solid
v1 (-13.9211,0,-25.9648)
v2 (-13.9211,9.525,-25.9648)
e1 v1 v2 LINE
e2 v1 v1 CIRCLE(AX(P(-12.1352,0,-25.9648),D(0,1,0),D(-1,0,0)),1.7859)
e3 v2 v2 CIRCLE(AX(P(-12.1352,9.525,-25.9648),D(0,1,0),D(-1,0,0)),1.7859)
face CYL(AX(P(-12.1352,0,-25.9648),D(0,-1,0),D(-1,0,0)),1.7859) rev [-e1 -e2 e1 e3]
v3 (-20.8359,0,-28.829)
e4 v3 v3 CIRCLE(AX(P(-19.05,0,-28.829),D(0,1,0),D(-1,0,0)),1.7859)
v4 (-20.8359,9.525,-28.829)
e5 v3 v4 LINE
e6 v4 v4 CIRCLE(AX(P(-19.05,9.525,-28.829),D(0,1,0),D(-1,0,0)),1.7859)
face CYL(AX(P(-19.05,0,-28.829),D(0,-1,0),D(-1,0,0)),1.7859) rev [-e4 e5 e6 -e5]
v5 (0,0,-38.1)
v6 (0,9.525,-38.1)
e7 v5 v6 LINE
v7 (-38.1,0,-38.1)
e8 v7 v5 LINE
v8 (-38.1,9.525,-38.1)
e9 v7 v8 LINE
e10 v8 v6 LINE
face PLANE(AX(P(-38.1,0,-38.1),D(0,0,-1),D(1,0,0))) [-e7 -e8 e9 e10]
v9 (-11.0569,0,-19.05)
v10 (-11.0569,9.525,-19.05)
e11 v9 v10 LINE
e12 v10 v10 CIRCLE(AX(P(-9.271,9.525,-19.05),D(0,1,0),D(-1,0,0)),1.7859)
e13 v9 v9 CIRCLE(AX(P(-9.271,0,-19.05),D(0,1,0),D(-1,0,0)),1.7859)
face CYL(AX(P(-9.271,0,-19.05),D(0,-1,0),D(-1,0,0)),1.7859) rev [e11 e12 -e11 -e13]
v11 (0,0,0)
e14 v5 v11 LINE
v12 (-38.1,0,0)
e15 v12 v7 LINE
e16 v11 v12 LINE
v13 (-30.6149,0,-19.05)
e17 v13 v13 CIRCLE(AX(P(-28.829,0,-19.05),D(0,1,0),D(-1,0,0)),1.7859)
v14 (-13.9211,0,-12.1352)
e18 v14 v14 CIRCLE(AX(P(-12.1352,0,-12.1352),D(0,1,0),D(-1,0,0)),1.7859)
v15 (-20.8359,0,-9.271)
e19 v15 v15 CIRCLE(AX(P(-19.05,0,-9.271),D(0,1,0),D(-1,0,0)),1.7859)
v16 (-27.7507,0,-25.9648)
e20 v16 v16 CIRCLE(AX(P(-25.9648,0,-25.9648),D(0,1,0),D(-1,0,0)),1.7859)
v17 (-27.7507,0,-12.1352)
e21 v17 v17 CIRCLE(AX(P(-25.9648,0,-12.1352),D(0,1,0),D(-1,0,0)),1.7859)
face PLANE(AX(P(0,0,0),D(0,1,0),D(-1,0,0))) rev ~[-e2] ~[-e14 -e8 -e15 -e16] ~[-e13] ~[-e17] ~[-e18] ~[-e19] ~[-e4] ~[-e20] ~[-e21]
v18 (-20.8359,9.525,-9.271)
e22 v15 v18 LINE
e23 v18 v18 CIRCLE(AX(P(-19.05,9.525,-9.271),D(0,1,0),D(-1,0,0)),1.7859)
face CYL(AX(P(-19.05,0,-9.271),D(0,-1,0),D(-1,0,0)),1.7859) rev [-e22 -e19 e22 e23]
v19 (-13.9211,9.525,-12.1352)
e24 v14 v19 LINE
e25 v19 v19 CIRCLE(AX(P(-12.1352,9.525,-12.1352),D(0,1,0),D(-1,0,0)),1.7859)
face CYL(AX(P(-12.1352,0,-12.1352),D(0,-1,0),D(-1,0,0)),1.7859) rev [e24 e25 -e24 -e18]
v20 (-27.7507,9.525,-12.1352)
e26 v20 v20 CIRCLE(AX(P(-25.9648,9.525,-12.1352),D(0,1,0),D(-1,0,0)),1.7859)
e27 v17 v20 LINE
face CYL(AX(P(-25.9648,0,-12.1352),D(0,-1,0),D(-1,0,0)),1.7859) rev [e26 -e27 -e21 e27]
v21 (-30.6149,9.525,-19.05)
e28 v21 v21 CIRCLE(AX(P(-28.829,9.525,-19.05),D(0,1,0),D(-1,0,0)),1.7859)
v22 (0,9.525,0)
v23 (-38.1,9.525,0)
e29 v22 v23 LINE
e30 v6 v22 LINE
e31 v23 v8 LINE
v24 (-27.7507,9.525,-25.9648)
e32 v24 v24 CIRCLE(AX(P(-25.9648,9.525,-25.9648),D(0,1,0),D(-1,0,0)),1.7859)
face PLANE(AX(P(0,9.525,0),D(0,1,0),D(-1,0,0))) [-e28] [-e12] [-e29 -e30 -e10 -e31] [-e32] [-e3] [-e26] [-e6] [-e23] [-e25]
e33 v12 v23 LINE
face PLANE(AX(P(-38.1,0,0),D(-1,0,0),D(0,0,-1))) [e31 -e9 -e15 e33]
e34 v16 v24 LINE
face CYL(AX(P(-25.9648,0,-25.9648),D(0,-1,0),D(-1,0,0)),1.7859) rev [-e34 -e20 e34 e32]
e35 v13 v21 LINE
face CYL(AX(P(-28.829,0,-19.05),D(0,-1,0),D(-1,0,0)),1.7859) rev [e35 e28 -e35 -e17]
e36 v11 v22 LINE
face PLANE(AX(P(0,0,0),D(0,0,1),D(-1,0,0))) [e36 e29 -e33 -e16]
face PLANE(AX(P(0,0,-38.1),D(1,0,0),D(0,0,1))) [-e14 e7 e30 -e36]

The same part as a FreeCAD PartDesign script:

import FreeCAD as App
import Part
import Sketcher
from FreeCAD import Vector
Q = App.Units.Quantity

doc = App.newDocument("Part")
params = doc.addObject("Spreadsheet::Sheet", "Params")
for row, (alias, value) in enumerate([
    ("sketch1_diameter", "0.140622 in"),
    ("sketch1_width", "1.5 in"),
    ("pad1_length", "0.375 in"),
], start=1):
    params.set(f"A{row}", alias)
    params.set(f"B{row}", "=" + value)
    params.setAlias(f"B{row}", alias)

body = doc.addObject("PartDesign::Body", "Body")

# Sketch on XZ plane
sketch1 = body.newObject("Sketcher::SketchObject", "Sketch")
sketch1.AttachmentSupport = (doc.getObject("XZ_Plane"), [""])
sketch1.MapMode = "FlatFace"
sketch1.addGeometry([
    Part.LineSegment(Vector(-38.1, 0, 0), Vector(0, 0, 0)),  # 0
    Part.LineSegment(Vector(0, 0, 0), Vector(0, -38.1, 0)),  # 1
    Part.LineSegment(Vector(0, -38.1, 0), Vector(-38.1, -38.1, 0)),  # 2
    Part.LineSegment(Vector(-38.1, -38.1, 0), Vector(-38.1, 0, 0)),  # 3
    Part.Circle(Vector(-12.1, -26, 0), Vector(0, 0, 1), 1.8),  # 4
    Part.Circle(Vector(-19.1, -28.8, 0), Vector(0, 0, 1), 1.8),  # 5
    Part.Circle(Vector(-26, -26, 0), Vector(0, 0, 1), 1.8),  # 6
    Part.Circle(Vector(-9.3, -19.1, 0), Vector(0, 0, 1), 1.8),  # 7
    Part.Circle(Vector(-12.1, -12.1, 0), Vector(0, 0, 1), 1.8),  # 8
    Part.Circle(Vector(-26, -12.1, 0), Vector(0, 0, 1), 1.8),  # 9
    Part.Circle(Vector(-28.8, -19.1, 0), Vector(0, 0, 1), 1.8),  # 10
    Part.Circle(Vector(-19.1, -9.3, 0), Vector(0, 0, 1), 1.8),  # 11
], False)
sketch1.addConstraint([
    Sketcher.Constraint("Coincident", 0, 2, 1, 1),
    Sketcher.Constraint("Coincident", 1, 2, 2, 1),
    Sketcher.Constraint("Coincident", 2, 2, 3, 1),
    Sketcher.Constraint("Coincident", 3, 2, 0, 1),
    Sketcher.Constraint("Horizontal", 0),
    Sketcher.Constraint("Vertical", 1),
    Sketcher.Constraint("Horizontal", 2),
    Sketcher.Constraint("Vertical", 3),
    Sketcher.Constraint("Coincident", 0, 2, -1, 1),
    Sketcher.Constraint("Equal", 4, 5),
    Sketcher.Constraint("Equal", 5, 6),
    Sketcher.Constraint("Equal", 6, 7),
    Sketcher.Constraint("Equal", 7, 8),
    Sketcher.Constraint("Equal", 8, 9),
    Sketcher.Constraint("Equal", 9, 10),
    Sketcher.Constraint("Equal", 10, 11),
    Sketcher.Constraint("Horizontal", 4, 3, 6, 3),
    Sketcher.Constraint("Horizontal", 8, 3, 9, 3),
    Sketcher.Constraint("Horizontal", 7, 3, 10, 3),
    Sketcher.Constraint("Vertical", 4, 3, 8, 3),
    Sketcher.Constraint("Vertical", 6, 3, 9, 3),
    Sketcher.Constraint("Vertical", 5, 3, 11, 3),
    Sketcher.Constraint("Equal", 2, 1),
    Sketcher.Constraint("Diameter", 4, Q("0.140622 in")),
    Sketcher.Constraint("DistanceX", 0, 1, 0, 2, Q("1.5 in")),
    Sketcher.Constraint("DistanceX", 5, 3, -1, 1, Q("0.75 in")),
    Sketcher.Constraint("DistanceY", 7, 3, -1, 1, Q("0.75 in")),
    Sketcher.Constraint("DistanceY", 5, 3, -1, 1, Q("1.135 in")),
    Sketcher.Constraint("DistanceX", 7, 3, -1, 1, Q("0.365 in")),
    Sketcher.Constraint("DistanceX", 10, 3, -1, 1, Q("1.135 in")),
    Sketcher.Constraint("DistanceY", 11, 3, -1, 1, Q("0.365 in")),
    Sketcher.Constraint("DistanceX", 4, 3, -1, 1, Q("12.1352 mm")),
    Sketcher.Constraint("DistanceY", 4, 3, -1, 1, Q("25.9648 mm")),
    Sketcher.Constraint("DistanceX", 6, 3, -1, 1, Q("25.9648 mm")),
    Sketcher.Constraint("DistanceY", 8, 3, -1, 1, Q("12.1352 mm")),
])
sketch1.setExpression("Constraints[23]", "Params.sketch1_diameter")
sketch1.setExpression("Constraints[24]", "Params.sketch1_width")
pad1 = body.newObject("PartDesign::Pad", "Pad")
pad1.Profile = sketch1
pad1.setExpression("Length", "Params.pad1_length")
pad1.Reversed = True

doc.recompute()
